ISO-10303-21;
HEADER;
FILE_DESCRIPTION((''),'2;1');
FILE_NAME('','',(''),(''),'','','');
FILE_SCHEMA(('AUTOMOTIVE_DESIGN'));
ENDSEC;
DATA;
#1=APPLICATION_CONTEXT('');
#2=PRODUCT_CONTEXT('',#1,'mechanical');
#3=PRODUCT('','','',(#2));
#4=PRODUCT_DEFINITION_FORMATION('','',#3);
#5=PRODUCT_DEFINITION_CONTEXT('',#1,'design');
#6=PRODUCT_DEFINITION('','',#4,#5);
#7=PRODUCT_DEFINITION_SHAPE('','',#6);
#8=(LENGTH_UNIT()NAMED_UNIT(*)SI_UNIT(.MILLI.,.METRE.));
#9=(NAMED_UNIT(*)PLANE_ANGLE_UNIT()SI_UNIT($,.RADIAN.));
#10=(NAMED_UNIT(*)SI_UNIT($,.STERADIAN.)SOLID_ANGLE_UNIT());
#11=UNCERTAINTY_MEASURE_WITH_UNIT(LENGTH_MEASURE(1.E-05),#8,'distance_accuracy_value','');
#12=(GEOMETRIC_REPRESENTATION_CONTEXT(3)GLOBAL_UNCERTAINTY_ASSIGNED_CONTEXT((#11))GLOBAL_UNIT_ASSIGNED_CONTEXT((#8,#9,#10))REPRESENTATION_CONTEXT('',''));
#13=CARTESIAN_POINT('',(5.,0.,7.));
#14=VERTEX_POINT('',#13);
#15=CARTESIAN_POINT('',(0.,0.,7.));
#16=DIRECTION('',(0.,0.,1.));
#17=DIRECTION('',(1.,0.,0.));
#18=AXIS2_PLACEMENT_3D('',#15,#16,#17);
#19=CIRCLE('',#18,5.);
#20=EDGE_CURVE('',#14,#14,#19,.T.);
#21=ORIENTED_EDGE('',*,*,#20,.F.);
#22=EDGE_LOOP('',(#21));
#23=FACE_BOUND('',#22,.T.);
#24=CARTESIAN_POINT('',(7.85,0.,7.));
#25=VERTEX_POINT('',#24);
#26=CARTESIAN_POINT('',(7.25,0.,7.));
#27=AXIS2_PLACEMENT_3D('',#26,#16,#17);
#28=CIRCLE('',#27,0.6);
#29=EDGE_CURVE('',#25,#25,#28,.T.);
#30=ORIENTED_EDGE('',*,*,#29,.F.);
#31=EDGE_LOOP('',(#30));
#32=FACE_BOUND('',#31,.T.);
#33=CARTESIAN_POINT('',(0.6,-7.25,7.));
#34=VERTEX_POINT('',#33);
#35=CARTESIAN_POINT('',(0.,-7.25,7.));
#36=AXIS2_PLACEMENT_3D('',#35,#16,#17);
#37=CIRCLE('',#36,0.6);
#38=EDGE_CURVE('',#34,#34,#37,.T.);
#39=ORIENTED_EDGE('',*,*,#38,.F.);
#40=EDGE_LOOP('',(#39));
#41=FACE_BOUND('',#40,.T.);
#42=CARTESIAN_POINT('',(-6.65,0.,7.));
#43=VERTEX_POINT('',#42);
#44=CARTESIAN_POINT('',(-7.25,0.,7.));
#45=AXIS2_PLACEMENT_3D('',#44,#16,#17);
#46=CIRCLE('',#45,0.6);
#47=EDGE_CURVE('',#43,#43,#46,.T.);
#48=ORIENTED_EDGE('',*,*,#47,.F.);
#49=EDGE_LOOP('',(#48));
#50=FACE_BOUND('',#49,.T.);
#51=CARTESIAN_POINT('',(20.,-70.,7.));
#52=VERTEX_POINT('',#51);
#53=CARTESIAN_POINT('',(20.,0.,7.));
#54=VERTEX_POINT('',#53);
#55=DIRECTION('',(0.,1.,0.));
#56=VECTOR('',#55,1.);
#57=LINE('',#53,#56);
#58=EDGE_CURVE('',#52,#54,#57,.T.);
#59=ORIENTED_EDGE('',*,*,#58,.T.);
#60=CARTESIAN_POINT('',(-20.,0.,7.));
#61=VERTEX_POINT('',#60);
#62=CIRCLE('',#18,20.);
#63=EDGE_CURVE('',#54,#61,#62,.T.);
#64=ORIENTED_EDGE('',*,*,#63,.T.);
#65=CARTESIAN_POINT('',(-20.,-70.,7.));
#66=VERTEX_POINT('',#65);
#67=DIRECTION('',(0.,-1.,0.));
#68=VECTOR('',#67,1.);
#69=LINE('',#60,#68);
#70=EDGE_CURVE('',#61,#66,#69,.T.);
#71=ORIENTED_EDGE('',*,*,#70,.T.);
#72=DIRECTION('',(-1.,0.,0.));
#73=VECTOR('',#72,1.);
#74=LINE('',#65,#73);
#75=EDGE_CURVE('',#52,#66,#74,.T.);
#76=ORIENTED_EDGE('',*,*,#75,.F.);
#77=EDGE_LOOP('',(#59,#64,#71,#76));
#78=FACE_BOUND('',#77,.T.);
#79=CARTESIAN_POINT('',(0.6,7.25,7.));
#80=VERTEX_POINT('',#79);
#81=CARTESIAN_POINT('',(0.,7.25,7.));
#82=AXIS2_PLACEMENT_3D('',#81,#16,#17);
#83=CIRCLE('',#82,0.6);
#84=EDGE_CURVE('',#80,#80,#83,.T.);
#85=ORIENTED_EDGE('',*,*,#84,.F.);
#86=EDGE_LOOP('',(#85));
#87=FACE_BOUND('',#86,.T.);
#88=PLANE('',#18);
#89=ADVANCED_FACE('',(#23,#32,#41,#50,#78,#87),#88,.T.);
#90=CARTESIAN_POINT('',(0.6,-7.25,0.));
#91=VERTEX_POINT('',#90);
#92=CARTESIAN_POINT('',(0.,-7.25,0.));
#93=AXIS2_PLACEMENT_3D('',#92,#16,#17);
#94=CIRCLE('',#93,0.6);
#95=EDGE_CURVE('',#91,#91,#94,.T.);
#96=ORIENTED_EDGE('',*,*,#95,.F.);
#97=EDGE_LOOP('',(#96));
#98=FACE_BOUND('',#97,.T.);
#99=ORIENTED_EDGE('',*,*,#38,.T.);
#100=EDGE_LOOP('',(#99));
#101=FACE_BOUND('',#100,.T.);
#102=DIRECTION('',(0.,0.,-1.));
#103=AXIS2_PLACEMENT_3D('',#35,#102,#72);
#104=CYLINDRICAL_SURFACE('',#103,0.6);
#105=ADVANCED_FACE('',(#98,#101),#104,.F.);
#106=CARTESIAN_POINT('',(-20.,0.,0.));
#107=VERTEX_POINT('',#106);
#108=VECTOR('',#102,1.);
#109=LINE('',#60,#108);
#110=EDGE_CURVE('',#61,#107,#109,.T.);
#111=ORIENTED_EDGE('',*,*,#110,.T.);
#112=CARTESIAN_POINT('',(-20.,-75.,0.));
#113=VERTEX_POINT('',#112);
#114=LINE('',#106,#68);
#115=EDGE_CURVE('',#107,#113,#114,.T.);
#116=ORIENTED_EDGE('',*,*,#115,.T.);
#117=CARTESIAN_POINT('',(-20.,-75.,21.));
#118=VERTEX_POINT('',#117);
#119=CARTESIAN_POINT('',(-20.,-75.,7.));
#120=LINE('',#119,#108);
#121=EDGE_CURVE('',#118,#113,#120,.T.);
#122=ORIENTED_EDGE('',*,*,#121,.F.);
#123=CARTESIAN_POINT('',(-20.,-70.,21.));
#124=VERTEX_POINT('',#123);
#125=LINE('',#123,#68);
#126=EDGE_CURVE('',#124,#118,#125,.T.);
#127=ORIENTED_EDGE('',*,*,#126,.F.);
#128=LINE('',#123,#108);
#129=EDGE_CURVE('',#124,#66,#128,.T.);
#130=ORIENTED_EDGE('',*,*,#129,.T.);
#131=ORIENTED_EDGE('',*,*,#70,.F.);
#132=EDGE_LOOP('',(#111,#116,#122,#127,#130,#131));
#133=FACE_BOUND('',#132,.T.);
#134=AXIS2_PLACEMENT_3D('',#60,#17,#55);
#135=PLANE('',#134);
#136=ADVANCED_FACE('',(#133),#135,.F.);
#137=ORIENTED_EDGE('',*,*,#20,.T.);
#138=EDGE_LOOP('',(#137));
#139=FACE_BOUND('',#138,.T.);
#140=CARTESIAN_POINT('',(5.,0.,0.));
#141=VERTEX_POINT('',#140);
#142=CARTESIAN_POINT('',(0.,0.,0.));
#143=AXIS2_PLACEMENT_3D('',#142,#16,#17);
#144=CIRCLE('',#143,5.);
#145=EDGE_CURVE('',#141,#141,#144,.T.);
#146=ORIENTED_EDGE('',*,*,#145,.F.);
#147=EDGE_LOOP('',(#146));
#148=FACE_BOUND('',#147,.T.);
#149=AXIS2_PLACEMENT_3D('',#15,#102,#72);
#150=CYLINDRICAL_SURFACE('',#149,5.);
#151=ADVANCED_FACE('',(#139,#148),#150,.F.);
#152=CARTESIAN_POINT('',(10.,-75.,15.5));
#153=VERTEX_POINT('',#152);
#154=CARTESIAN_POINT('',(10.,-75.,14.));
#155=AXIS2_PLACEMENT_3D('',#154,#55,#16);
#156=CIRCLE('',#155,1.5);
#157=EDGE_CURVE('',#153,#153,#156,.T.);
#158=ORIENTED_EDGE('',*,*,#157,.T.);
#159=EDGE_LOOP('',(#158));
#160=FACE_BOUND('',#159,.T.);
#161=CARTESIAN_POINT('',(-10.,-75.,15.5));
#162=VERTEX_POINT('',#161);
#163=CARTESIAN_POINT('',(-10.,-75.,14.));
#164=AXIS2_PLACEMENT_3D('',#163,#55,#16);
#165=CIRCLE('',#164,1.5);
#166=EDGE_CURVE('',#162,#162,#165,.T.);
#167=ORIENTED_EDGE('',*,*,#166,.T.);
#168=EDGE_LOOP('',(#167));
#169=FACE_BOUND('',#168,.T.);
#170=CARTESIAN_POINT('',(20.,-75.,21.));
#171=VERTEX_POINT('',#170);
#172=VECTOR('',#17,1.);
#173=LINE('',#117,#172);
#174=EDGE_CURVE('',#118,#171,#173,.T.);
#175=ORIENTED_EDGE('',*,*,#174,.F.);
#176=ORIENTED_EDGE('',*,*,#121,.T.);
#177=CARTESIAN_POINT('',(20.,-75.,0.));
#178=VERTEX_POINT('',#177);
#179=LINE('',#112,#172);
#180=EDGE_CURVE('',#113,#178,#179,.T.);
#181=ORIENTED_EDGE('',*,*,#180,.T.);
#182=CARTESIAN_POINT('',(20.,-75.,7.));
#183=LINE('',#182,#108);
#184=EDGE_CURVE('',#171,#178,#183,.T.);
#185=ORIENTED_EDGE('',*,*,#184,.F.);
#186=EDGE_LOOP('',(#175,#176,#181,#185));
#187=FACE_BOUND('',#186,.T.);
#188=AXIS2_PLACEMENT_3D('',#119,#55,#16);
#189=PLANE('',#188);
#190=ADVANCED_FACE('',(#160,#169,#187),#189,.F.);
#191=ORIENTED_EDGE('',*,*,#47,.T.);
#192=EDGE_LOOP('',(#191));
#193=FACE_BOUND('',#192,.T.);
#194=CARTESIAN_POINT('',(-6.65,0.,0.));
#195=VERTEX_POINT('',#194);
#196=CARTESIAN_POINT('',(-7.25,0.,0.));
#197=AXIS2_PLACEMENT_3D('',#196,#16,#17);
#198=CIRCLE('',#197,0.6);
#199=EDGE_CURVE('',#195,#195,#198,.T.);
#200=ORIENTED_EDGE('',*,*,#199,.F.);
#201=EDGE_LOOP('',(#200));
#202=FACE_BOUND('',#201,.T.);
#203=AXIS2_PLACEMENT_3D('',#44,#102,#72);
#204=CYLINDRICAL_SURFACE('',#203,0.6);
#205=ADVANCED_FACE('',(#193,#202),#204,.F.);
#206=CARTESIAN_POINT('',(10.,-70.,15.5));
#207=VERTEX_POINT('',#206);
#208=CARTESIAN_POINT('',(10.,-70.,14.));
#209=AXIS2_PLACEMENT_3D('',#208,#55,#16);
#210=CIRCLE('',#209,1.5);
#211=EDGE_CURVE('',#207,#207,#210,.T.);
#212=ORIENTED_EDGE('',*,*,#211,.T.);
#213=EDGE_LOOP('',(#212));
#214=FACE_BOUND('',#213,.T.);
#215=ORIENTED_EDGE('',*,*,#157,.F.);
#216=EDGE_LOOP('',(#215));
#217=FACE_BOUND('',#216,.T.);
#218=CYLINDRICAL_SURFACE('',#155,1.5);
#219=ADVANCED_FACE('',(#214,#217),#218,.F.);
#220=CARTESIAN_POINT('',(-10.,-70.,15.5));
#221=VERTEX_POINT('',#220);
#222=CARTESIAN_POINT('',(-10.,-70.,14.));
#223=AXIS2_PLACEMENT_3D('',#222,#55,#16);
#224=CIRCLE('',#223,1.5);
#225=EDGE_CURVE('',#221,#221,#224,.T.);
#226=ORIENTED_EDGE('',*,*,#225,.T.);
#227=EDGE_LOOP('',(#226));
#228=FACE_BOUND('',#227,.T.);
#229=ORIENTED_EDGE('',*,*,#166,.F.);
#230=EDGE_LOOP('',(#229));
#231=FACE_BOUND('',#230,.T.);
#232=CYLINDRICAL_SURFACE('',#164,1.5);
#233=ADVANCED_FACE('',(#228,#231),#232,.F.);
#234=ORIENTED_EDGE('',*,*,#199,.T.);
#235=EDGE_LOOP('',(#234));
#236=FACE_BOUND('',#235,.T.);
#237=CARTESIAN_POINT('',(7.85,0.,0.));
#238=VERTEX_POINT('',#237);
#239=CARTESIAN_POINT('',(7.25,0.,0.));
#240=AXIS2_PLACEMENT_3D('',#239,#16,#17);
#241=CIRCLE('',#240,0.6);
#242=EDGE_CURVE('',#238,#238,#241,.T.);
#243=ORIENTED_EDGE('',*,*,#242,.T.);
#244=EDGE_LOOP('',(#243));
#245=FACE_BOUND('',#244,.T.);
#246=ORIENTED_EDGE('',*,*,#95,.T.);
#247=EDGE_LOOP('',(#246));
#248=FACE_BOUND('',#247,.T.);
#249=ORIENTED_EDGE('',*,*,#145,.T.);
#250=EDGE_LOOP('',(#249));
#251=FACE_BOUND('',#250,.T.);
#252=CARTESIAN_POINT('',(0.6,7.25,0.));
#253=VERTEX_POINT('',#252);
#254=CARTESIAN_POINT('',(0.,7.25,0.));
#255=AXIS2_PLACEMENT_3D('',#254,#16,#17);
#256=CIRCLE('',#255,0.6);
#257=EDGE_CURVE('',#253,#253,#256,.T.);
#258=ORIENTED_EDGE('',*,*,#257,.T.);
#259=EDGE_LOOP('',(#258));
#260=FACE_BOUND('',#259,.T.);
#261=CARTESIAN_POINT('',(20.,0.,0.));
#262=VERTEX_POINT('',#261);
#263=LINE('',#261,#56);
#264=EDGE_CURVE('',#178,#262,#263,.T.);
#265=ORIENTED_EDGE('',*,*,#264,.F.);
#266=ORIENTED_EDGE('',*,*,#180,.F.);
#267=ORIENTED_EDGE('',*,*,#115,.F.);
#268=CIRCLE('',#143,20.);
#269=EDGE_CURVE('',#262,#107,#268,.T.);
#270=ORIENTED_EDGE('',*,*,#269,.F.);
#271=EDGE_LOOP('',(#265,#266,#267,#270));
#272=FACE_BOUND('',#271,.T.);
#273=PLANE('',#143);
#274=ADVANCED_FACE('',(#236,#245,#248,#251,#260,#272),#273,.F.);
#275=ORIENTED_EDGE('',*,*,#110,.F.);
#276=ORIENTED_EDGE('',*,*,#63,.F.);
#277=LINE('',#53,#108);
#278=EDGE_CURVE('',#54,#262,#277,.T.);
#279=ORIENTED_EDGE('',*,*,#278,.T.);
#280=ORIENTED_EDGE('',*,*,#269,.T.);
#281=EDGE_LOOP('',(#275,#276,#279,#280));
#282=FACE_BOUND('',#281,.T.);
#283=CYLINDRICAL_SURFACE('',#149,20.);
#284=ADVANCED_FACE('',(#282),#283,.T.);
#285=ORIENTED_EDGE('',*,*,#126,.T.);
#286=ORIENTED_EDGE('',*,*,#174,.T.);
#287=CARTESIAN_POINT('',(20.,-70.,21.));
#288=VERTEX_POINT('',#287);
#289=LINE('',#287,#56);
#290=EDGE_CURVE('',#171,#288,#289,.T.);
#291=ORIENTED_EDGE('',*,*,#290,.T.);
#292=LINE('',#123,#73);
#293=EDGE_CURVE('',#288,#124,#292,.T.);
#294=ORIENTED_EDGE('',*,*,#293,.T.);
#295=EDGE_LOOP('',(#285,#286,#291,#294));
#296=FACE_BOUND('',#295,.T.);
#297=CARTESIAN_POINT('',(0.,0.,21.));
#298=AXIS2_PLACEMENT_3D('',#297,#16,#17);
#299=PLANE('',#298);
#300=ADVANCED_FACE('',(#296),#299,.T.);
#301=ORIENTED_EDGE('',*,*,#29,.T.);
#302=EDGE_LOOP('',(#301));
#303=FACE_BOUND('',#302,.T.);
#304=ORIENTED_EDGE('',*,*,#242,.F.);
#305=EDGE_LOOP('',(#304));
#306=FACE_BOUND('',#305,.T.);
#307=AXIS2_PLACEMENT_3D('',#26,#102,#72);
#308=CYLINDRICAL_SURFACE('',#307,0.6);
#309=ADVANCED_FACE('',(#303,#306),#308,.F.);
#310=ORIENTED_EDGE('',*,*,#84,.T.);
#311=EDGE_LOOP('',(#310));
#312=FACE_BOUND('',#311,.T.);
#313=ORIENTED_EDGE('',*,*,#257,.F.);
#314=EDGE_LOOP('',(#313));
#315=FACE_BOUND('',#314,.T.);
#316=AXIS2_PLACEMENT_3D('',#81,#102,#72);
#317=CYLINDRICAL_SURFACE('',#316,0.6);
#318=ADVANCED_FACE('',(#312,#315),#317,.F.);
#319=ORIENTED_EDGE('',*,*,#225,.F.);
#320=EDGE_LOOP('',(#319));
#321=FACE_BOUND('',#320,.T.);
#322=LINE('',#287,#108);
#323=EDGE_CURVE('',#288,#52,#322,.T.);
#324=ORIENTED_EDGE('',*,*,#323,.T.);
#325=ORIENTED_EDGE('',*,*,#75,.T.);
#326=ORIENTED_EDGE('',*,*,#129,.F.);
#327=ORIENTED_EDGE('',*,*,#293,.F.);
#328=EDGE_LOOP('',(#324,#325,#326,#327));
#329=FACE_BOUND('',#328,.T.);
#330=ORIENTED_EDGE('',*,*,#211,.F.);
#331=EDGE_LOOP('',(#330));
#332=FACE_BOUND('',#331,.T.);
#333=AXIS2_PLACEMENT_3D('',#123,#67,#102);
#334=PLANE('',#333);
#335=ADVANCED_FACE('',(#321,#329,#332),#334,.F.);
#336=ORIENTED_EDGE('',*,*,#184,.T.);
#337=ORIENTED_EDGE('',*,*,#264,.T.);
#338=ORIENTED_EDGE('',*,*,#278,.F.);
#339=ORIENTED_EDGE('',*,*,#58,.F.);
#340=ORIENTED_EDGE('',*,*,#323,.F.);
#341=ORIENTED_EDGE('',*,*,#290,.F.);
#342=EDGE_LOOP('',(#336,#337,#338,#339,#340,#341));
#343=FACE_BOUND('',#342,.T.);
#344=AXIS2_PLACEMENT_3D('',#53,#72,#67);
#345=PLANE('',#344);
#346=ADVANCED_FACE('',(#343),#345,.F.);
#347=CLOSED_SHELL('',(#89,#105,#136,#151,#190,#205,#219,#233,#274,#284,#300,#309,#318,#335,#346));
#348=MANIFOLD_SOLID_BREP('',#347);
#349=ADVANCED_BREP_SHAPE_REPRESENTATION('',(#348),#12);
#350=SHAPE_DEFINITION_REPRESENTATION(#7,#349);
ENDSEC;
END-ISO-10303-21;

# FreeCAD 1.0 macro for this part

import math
import FreeCAD as App
import Part
import Sketcher


def add_polygon(sketch, points):
    """Adds a closed chain of lines whose ends are joined by coincident constraints."""
    first, n = sketch.GeometryCount, len(points)
    for a, b in zip(points, points[1:] + points[:1]):
        sketch.addGeometry(Part.LineSegment(App.Vector(*a, 0), App.Vector(*b, 0)), False)
    for i in range(n):
        sketch.addConstraint(Sketcher.Constraint("Coincident", first + i, 2, first + (i + 1) % n, 1))

doc = App.newDocument("Part")
body = doc.addObject("PartDesign::Body", "Body")

sketch1 = body.newObject("Sketcher::SketchObject", "Sketch")
sketch1.AttachmentSupport = (doc.getObject("XY_Plane"), [""])
sketch1.MapMode = "FlatFace"
sketch1.addGeometry([
    Part.LineSegment(App.Vector(20, -75, 0), App.Vector(20, 0, 0)),
    Part.ArcOfCircle(Part.Circle(App.Vector(0, 0, 0), App.Vector(0, 0, 1), 20), math.radians(0), math.radians(180)),
    Part.LineSegment(App.Vector(-20, 0, 0), App.Vector(-20, -75, 0)),
    Part.LineSegment(App.Vector(-20, -75, 0), App.Vector(20, -75, 0)),
    Part.Circle(App.Vector(0, -7.2, 0), App.Vector(0, 0, 1), 0.6),
    Part.Circle(App.Vector(7.2, 0, 0), App.Vector(0, 0, 1), 0.6),
    Part.Circle(App.Vector(0, 0, 0), App.Vector(0, 0, 1), 5),
    Part.Circle(App.Vector(-7.2, 0, 0), App.Vector(0, 0, 1), 0.6),
    Part.Circle(App.Vector(0, 7.2, 0), App.Vector(0, 0, 1), 0.6),
], False)
sketch1.addConstraint([
    Sketcher.Constraint("Tangent", 0, 2, 1, 1),
    Sketcher.Constraint("Tangent", 1, 2, 2, 1),
    Sketcher.Constraint("Coincident", 2, 2, 3, 1),
    Sketcher.Constraint("Coincident", 3, 2, 0, 1),
    Sketcher.Constraint("Vertical", 0),
    Sketcher.Constraint("Vertical", 2),
    Sketcher.Constraint("Horizontal", 3),
    Sketcher.Constraint("Coincident", 1, 3, -1, 1),
    Sketcher.Constraint("Coincident", 6, 3, -1, 1),
    Sketcher.Constraint("Equal", 4, 5),
    Sketcher.Constraint("Equal", 5, 7),
    Sketcher.Constraint("Equal", 7, 8),
    Sketcher.Constraint("Symmetric", 5, 3, 7, 3, -1, 1),
    Sketcher.Constraint("Symmetric", 4, 3, 8, 3, -1, 1),
    Sketcher.Constraint("PointOnObject", 4, 3, -2),
    Sketcher.Constraint("PointOnObject", 5, 3, -1),
    Sketcher.Constraint("Diameter", 6, 10.0),
    Sketcher.Constraint("Radius", 1, 20.0),
    Sketcher.Constraint("Diameter", 4, 1.2),
    Sketcher.Constraint("DistanceY", 0, 1, 0, 2, 75.0),
    Sketcher.Constraint("DistanceX", 7, 3, 5, 3, 14.5),
    Sketcher.Constraint("DistanceY", 4, 3, 8, 3, 14.5),
])
pad1 = body.newObject("PartDesign::Pad", "Pad")
pad1.Profile = sketch1
pad1.Length = 7

sketch2 = body.newObject("Sketcher::SketchObject", "Sketch001")
sketch2.AttachmentSupport = (doc.getObject("XY_Plane"), [""])
sketch2.MapMode = "FlatFace"
sketch2.AttachmentOffset = App.Placement(App.Vector(0, 0, 7), App.Rotation())
add_polygon(sketch2, [(-20, -70), (-20, -75), (20, -75), (20, -70)])
sketch2.addConstraint([
    Sketcher.Constraint("Vertical", 0),
    Sketcher.Constraint("Horizontal", 1),
    Sketcher.Constraint("Vertical", 2),
    Sketcher.Constraint("Horizontal", 3),
    Sketcher.Constraint("DistanceX", 1, 1, 1, 2, 40.0),
    Sketcher.Constraint("DistanceY", 0, 2, 0, 1, 5.0),
    Sketcher.Constraint("DistanceX", 0, 2, -1, 1, 20.0),
    Sketcher.Constraint("DistanceY", 0, 2, -1, 1, 75.0),
])
pad2 = body.newObject("PartDesign::Pad", "Pad001")
pad2.Profile = sketch2
pad2.Length = 14

sketch3 = body.newObject("Sketcher::SketchObject", "Sketch002")
sketch3.AttachmentSupport = (doc.getObject("XZ_Plane"), [""])
sketch3.MapMode = "FlatFace"
sketch3.AttachmentOffset = App.Placement(App.Vector(0, 0, 70), App.Rotation())
sketch3.addGeometry([
    Part.Circle(App.Vector(-10, 14, 0), App.Vector(0, 0, 1), 1.5),
    Part.Circle(App.Vector(10, 14, 0), App.Vector(0, 0, 1), 1.5),
], False)
sketch3.addConstraint([
    Sketcher.Constraint("Equal", 0, 1),
    Sketcher.Constraint("Symmetric", 0, 3, 1, 3, -2),
    Sketcher.Constraint("Diameter", 0, 3.0),
    Sketcher.Constraint("DistanceX", 0, 3, -1, 1, 10.0),
    Sketcher.Constraint("DistanceY", -1, 1, 0, 3, 14.0),
])
pocket1 = body.newObject("PartDesign::Pocket", "Pocket")
pocket1.Profile = sketch3
pocket1.Type = "ThroughAll"
pocket1.Reversed = True

doc.recompute()
